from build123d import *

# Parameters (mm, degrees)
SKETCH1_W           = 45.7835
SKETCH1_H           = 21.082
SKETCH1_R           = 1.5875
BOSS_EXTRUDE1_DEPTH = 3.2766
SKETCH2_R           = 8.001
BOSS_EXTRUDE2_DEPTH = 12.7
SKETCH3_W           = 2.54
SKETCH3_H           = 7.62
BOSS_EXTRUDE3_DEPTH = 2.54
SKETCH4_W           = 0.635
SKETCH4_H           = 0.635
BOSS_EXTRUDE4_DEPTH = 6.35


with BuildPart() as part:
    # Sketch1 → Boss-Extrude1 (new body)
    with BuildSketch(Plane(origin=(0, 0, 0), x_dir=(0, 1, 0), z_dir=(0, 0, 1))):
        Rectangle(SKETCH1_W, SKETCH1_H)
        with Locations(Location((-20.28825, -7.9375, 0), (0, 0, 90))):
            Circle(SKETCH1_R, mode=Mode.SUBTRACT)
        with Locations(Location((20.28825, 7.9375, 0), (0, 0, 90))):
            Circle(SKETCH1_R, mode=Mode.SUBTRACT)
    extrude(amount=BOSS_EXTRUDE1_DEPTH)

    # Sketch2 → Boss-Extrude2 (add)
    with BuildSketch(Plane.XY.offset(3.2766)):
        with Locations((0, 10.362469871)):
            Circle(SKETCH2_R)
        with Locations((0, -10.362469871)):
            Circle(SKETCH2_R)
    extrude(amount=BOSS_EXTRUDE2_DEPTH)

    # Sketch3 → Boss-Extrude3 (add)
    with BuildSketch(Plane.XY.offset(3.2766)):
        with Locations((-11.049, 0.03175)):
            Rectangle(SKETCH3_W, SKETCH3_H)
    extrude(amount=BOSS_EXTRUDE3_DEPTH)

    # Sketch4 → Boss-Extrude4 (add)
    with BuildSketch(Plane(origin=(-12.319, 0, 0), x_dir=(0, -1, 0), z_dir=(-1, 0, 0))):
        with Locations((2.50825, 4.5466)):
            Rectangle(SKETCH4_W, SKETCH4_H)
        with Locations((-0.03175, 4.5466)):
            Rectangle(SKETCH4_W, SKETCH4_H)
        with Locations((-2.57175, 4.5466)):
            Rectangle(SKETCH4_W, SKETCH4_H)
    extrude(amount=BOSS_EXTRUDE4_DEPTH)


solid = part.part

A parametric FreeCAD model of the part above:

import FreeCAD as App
import Part
import Sketcher
Q = App.Units.Quantity


def add_polygon(sketch, points):
    """Adds a closed chain of lines whose ends are joined by coincident constraints."""
    first, n = sketch.GeometryCount, len(points)
    for a, b in zip(points, points[1:] + points[:1]):
        sketch.addGeometry(Part.LineSegment(App.Vector(*a, 0), App.Vector(*b, 0)), False)
    for i in range(n):
        sketch.addConstraint(Sketcher.Constraint("Coincident", first + i, 2, first + (i + 1) % n, 1))

doc = App.newDocument("Part")
body = doc.addObject("PartDesign::Body", "Body")

# Sketch on XY plane
sketch1 = doc.addObject("Sketcher::SketchObject", "Sketch")
body.addObject(sketch1)
sketch1.AttachmentSupport = (doc.XY_Plane, [""])
sketch1.MapMode = "FlatFace"
add_polygon(sketch1, [(-10.541, -22.89175), (10.541, -22.89175), (10.541, 22.89175), (-10.541, 22.89175)])  # lines 0-3
sketch1.addGeometry(Part.Circle(App.Vector(7.9375, -20.28825, 0), App.Vector(0, 0, 1), 1.5875), False)  # 4
sketch1.addGeometry(Part.Circle(App.Vector(-7.9375, 20.28825, 0), App.Vector(0, 0, 1), 1.5875), False)  # 5
sketch1.addConstraint([
    Sketcher.Constraint("Horizontal", 0),
    Sketcher.Constraint("Vertical", 1),
    Sketcher.Constraint("Horizontal", 2),
    Sketcher.Constraint("Vertical", 3),
    Sketcher.Constraint("Equal", 4, 5),
    Sketcher.Constraint("Symmetric", 4, 3, 5, 3, -1, 1),
    Sketcher.Constraint("Symmetric", 0, 2, 2, 2, -1, 1),
    Sketcher.Constraint("Diameter", 4, Q("0.125 in")),
    Sketcher.Constraint("DistanceX", 0, 1, 0, 2, Q("0.83 in")),
    Sketcher.Constraint("DistanceY", 0, 2, 5, 3, Q("1.7 in")),
    Sketcher.Constraint("DistanceY", 1, 1, 1, 2, Q("1.8025 in")),
    Sketcher.Constraint("DistanceX", -1, 1, 4, 3, Q("0.3125 in")),
])
pad1 = doc.addObject("PartDesign::Pad", "Pad")
body.addObject(pad1)
pad1.Profile = sketch1
pad1.Length = Q("0.129 in")

# Sketch on XY plane
sketch2 = doc.addObject("Sketcher::SketchObject", "Sketch001")
body.addObject(sketch2)
sketch2.AttachmentSupport = (doc.XY_Plane, [""])
sketch2.MapMode = "FlatFace"
sketch2.AttachmentOffset = App.Placement(App.Vector(0, 0, 0.129 * 25.4), App.Rotation())
sketch2.addGeometry([
    Part.Circle(App.Vector(0, 10.36247, 0), App.Vector(0, 0, 1), 8.001),
    Part.Circle(App.Vector(0, -10.36247, 0), App.Vector(0, 0, 1), 8.001),
], False)
sketch2.addConstraint([
    Sketcher.Constraint("Equal", 0, 1),
    Sketcher.Constraint("Symmetric", 0, 3, 1, 3, -1, 1),
    Sketcher.Constraint("PointOnObject", 0, 3, -2),
    Sketcher.Constraint("Diameter", 0, Q("0.63 in")),
    Sketcher.Constraint("DistanceY", -1, 1, 0, 3, Q("10.36247 mm")),
])
pad2 = doc.addObject("PartDesign::Pad", "Pad001")
body.addObject(pad2)
pad2.Profile = sketch2
pad2.Length = Q("0.5 in")

# Sketch on XY plane
sketch3 = doc.addObject("Sketcher::SketchObject", "Sketch002")
body.addObject(sketch3)
sketch3.AttachmentSupport = (doc.XY_Plane, [""])
sketch3.MapMode = "FlatFace"
sketch3.AttachmentOffset = App.Placement(App.Vector(0, 0, 0.129 * 25.4), App.Rotation())
add_polygon(sketch3, [(-12.319, 3.84175), (-12.319, -3.77825), (-9.779, -3.77825), (-9.779, 3.84175)])  # lines 0-3
sketch3.addConstraint([
    Sketcher.Constraint("Vertical", 0),
    Sketcher.Constraint("Horizontal", 1),
    Sketcher.Constraint("Vertical", 2),
    Sketcher.Constraint("Horizontal", 3),
    Sketcher.Constraint("DistanceX", 1, 1, 1, 2, Q("0.1 in")),
    Sketcher.Constraint("DistanceY", 0, 2, 0, 1, Q("0.3 in")),
    Sketcher.Constraint("DistanceX", 0, 2, -1, 1, Q("0.485 in")),
    Sketcher.Constraint("DistanceY", 0, 2, -1, 1, Q("3.77825 mm")),
])
pad3 = doc.addObject("PartDesign::Pad", "Pad002")
body.addObject(pad3)
pad3.Profile = sketch3
pad3.Length = Q("0.1 in")

# Sketch on YZ plane
sketch4 = doc.addObject("Sketcher::SketchObject", "Sketch003")
body.addObject(sketch4)
sketch4.AttachmentSupport = (doc.YZ_Plane, [""])
sketch4.MapMode = "FlatFace"
sketch4.AttachmentOffset = App.Placement(App.Vector(0, 0, -0.485 * 25.4), App.Rotation())
add_polygon(sketch4, [(-2.19075, 4.8641), (-2.19075, 4.2291), (-2.82575, 4.2291), (-2.82575, 4.8641)])  # lines 0-3
add_polygon(sketch4, [(0.34925, 4.8641), (0.34925, 4.2291), (-0.28575, 4.2291), (-0.28575, 4.8641)])  # lines 4-7
add_polygon(sketch4, [(2.88925, 4.8641), (2.88925, 4.2291), (2.25425, 4.2291), (2.25425, 4.8641)])  # lines 8-11
sketch4.addConstraint([
    Sketcher.Constraint("Vertical", 0),
    Sketcher.Constraint("Horizontal", 1),
    Sketcher.Constraint("Vertical", 2),
    Sketcher.Constraint("Horizontal", 3),
    Sketcher.Constraint("Vertical", 4),
    Sketcher.Constraint("Horizontal", 5),
    Sketcher.Constraint("Vertical", 6),
    Sketcher.Constraint("Horizontal", 7),
    Sketcher.Constraint("Vertical", 8),
    Sketcher.Constraint("Horizontal", 9),
    Sketcher.Constraint("Vertical", 10),
    Sketcher.Constraint("Horizontal", 11),
    Sketcher.Constraint("Horizontal", 1, 2, 4, 2),
    Sketcher.Constraint("Horizontal", 3, 2, 6, 2),
    Sketcher.Constraint("Horizontal", 5, 2, 8, 2),
    Sketcher.Constraint("Horizontal", 7, 2, 10, 2),
    Sketcher.Constraint("Equal", 3, 5),
    Sketcher.Constraint("Equal", 7, 9),
    Sketcher.Constraint("Equal", 11, 0),
    Sketcher.Constraint("DistanceX", 0, 2, 4, 2, Q("0.1 in")),
    Sketcher.Constraint("DistanceX", 4, 2, 8, 2, Q("0.1 in")),
    Sketcher.Constraint("DistanceX", 1, 2, 1, 1, Q("0.025 in")),
    Sketcher.Constraint("DistanceY", -1, 1, 0, 2, Q("0.1665 in")),
    Sketcher.Constraint("DistanceX", 0, 2, -1, 1, Q("2.19075 mm")),
])
pad4 = doc.addObject("PartDesign::Pad", "Pad003")
body.addObject(pad4)
pad4.Profile = sketch4
pad4.Length = Q("0.25 in")
pad4.Reversed = True

doc.recompute()
